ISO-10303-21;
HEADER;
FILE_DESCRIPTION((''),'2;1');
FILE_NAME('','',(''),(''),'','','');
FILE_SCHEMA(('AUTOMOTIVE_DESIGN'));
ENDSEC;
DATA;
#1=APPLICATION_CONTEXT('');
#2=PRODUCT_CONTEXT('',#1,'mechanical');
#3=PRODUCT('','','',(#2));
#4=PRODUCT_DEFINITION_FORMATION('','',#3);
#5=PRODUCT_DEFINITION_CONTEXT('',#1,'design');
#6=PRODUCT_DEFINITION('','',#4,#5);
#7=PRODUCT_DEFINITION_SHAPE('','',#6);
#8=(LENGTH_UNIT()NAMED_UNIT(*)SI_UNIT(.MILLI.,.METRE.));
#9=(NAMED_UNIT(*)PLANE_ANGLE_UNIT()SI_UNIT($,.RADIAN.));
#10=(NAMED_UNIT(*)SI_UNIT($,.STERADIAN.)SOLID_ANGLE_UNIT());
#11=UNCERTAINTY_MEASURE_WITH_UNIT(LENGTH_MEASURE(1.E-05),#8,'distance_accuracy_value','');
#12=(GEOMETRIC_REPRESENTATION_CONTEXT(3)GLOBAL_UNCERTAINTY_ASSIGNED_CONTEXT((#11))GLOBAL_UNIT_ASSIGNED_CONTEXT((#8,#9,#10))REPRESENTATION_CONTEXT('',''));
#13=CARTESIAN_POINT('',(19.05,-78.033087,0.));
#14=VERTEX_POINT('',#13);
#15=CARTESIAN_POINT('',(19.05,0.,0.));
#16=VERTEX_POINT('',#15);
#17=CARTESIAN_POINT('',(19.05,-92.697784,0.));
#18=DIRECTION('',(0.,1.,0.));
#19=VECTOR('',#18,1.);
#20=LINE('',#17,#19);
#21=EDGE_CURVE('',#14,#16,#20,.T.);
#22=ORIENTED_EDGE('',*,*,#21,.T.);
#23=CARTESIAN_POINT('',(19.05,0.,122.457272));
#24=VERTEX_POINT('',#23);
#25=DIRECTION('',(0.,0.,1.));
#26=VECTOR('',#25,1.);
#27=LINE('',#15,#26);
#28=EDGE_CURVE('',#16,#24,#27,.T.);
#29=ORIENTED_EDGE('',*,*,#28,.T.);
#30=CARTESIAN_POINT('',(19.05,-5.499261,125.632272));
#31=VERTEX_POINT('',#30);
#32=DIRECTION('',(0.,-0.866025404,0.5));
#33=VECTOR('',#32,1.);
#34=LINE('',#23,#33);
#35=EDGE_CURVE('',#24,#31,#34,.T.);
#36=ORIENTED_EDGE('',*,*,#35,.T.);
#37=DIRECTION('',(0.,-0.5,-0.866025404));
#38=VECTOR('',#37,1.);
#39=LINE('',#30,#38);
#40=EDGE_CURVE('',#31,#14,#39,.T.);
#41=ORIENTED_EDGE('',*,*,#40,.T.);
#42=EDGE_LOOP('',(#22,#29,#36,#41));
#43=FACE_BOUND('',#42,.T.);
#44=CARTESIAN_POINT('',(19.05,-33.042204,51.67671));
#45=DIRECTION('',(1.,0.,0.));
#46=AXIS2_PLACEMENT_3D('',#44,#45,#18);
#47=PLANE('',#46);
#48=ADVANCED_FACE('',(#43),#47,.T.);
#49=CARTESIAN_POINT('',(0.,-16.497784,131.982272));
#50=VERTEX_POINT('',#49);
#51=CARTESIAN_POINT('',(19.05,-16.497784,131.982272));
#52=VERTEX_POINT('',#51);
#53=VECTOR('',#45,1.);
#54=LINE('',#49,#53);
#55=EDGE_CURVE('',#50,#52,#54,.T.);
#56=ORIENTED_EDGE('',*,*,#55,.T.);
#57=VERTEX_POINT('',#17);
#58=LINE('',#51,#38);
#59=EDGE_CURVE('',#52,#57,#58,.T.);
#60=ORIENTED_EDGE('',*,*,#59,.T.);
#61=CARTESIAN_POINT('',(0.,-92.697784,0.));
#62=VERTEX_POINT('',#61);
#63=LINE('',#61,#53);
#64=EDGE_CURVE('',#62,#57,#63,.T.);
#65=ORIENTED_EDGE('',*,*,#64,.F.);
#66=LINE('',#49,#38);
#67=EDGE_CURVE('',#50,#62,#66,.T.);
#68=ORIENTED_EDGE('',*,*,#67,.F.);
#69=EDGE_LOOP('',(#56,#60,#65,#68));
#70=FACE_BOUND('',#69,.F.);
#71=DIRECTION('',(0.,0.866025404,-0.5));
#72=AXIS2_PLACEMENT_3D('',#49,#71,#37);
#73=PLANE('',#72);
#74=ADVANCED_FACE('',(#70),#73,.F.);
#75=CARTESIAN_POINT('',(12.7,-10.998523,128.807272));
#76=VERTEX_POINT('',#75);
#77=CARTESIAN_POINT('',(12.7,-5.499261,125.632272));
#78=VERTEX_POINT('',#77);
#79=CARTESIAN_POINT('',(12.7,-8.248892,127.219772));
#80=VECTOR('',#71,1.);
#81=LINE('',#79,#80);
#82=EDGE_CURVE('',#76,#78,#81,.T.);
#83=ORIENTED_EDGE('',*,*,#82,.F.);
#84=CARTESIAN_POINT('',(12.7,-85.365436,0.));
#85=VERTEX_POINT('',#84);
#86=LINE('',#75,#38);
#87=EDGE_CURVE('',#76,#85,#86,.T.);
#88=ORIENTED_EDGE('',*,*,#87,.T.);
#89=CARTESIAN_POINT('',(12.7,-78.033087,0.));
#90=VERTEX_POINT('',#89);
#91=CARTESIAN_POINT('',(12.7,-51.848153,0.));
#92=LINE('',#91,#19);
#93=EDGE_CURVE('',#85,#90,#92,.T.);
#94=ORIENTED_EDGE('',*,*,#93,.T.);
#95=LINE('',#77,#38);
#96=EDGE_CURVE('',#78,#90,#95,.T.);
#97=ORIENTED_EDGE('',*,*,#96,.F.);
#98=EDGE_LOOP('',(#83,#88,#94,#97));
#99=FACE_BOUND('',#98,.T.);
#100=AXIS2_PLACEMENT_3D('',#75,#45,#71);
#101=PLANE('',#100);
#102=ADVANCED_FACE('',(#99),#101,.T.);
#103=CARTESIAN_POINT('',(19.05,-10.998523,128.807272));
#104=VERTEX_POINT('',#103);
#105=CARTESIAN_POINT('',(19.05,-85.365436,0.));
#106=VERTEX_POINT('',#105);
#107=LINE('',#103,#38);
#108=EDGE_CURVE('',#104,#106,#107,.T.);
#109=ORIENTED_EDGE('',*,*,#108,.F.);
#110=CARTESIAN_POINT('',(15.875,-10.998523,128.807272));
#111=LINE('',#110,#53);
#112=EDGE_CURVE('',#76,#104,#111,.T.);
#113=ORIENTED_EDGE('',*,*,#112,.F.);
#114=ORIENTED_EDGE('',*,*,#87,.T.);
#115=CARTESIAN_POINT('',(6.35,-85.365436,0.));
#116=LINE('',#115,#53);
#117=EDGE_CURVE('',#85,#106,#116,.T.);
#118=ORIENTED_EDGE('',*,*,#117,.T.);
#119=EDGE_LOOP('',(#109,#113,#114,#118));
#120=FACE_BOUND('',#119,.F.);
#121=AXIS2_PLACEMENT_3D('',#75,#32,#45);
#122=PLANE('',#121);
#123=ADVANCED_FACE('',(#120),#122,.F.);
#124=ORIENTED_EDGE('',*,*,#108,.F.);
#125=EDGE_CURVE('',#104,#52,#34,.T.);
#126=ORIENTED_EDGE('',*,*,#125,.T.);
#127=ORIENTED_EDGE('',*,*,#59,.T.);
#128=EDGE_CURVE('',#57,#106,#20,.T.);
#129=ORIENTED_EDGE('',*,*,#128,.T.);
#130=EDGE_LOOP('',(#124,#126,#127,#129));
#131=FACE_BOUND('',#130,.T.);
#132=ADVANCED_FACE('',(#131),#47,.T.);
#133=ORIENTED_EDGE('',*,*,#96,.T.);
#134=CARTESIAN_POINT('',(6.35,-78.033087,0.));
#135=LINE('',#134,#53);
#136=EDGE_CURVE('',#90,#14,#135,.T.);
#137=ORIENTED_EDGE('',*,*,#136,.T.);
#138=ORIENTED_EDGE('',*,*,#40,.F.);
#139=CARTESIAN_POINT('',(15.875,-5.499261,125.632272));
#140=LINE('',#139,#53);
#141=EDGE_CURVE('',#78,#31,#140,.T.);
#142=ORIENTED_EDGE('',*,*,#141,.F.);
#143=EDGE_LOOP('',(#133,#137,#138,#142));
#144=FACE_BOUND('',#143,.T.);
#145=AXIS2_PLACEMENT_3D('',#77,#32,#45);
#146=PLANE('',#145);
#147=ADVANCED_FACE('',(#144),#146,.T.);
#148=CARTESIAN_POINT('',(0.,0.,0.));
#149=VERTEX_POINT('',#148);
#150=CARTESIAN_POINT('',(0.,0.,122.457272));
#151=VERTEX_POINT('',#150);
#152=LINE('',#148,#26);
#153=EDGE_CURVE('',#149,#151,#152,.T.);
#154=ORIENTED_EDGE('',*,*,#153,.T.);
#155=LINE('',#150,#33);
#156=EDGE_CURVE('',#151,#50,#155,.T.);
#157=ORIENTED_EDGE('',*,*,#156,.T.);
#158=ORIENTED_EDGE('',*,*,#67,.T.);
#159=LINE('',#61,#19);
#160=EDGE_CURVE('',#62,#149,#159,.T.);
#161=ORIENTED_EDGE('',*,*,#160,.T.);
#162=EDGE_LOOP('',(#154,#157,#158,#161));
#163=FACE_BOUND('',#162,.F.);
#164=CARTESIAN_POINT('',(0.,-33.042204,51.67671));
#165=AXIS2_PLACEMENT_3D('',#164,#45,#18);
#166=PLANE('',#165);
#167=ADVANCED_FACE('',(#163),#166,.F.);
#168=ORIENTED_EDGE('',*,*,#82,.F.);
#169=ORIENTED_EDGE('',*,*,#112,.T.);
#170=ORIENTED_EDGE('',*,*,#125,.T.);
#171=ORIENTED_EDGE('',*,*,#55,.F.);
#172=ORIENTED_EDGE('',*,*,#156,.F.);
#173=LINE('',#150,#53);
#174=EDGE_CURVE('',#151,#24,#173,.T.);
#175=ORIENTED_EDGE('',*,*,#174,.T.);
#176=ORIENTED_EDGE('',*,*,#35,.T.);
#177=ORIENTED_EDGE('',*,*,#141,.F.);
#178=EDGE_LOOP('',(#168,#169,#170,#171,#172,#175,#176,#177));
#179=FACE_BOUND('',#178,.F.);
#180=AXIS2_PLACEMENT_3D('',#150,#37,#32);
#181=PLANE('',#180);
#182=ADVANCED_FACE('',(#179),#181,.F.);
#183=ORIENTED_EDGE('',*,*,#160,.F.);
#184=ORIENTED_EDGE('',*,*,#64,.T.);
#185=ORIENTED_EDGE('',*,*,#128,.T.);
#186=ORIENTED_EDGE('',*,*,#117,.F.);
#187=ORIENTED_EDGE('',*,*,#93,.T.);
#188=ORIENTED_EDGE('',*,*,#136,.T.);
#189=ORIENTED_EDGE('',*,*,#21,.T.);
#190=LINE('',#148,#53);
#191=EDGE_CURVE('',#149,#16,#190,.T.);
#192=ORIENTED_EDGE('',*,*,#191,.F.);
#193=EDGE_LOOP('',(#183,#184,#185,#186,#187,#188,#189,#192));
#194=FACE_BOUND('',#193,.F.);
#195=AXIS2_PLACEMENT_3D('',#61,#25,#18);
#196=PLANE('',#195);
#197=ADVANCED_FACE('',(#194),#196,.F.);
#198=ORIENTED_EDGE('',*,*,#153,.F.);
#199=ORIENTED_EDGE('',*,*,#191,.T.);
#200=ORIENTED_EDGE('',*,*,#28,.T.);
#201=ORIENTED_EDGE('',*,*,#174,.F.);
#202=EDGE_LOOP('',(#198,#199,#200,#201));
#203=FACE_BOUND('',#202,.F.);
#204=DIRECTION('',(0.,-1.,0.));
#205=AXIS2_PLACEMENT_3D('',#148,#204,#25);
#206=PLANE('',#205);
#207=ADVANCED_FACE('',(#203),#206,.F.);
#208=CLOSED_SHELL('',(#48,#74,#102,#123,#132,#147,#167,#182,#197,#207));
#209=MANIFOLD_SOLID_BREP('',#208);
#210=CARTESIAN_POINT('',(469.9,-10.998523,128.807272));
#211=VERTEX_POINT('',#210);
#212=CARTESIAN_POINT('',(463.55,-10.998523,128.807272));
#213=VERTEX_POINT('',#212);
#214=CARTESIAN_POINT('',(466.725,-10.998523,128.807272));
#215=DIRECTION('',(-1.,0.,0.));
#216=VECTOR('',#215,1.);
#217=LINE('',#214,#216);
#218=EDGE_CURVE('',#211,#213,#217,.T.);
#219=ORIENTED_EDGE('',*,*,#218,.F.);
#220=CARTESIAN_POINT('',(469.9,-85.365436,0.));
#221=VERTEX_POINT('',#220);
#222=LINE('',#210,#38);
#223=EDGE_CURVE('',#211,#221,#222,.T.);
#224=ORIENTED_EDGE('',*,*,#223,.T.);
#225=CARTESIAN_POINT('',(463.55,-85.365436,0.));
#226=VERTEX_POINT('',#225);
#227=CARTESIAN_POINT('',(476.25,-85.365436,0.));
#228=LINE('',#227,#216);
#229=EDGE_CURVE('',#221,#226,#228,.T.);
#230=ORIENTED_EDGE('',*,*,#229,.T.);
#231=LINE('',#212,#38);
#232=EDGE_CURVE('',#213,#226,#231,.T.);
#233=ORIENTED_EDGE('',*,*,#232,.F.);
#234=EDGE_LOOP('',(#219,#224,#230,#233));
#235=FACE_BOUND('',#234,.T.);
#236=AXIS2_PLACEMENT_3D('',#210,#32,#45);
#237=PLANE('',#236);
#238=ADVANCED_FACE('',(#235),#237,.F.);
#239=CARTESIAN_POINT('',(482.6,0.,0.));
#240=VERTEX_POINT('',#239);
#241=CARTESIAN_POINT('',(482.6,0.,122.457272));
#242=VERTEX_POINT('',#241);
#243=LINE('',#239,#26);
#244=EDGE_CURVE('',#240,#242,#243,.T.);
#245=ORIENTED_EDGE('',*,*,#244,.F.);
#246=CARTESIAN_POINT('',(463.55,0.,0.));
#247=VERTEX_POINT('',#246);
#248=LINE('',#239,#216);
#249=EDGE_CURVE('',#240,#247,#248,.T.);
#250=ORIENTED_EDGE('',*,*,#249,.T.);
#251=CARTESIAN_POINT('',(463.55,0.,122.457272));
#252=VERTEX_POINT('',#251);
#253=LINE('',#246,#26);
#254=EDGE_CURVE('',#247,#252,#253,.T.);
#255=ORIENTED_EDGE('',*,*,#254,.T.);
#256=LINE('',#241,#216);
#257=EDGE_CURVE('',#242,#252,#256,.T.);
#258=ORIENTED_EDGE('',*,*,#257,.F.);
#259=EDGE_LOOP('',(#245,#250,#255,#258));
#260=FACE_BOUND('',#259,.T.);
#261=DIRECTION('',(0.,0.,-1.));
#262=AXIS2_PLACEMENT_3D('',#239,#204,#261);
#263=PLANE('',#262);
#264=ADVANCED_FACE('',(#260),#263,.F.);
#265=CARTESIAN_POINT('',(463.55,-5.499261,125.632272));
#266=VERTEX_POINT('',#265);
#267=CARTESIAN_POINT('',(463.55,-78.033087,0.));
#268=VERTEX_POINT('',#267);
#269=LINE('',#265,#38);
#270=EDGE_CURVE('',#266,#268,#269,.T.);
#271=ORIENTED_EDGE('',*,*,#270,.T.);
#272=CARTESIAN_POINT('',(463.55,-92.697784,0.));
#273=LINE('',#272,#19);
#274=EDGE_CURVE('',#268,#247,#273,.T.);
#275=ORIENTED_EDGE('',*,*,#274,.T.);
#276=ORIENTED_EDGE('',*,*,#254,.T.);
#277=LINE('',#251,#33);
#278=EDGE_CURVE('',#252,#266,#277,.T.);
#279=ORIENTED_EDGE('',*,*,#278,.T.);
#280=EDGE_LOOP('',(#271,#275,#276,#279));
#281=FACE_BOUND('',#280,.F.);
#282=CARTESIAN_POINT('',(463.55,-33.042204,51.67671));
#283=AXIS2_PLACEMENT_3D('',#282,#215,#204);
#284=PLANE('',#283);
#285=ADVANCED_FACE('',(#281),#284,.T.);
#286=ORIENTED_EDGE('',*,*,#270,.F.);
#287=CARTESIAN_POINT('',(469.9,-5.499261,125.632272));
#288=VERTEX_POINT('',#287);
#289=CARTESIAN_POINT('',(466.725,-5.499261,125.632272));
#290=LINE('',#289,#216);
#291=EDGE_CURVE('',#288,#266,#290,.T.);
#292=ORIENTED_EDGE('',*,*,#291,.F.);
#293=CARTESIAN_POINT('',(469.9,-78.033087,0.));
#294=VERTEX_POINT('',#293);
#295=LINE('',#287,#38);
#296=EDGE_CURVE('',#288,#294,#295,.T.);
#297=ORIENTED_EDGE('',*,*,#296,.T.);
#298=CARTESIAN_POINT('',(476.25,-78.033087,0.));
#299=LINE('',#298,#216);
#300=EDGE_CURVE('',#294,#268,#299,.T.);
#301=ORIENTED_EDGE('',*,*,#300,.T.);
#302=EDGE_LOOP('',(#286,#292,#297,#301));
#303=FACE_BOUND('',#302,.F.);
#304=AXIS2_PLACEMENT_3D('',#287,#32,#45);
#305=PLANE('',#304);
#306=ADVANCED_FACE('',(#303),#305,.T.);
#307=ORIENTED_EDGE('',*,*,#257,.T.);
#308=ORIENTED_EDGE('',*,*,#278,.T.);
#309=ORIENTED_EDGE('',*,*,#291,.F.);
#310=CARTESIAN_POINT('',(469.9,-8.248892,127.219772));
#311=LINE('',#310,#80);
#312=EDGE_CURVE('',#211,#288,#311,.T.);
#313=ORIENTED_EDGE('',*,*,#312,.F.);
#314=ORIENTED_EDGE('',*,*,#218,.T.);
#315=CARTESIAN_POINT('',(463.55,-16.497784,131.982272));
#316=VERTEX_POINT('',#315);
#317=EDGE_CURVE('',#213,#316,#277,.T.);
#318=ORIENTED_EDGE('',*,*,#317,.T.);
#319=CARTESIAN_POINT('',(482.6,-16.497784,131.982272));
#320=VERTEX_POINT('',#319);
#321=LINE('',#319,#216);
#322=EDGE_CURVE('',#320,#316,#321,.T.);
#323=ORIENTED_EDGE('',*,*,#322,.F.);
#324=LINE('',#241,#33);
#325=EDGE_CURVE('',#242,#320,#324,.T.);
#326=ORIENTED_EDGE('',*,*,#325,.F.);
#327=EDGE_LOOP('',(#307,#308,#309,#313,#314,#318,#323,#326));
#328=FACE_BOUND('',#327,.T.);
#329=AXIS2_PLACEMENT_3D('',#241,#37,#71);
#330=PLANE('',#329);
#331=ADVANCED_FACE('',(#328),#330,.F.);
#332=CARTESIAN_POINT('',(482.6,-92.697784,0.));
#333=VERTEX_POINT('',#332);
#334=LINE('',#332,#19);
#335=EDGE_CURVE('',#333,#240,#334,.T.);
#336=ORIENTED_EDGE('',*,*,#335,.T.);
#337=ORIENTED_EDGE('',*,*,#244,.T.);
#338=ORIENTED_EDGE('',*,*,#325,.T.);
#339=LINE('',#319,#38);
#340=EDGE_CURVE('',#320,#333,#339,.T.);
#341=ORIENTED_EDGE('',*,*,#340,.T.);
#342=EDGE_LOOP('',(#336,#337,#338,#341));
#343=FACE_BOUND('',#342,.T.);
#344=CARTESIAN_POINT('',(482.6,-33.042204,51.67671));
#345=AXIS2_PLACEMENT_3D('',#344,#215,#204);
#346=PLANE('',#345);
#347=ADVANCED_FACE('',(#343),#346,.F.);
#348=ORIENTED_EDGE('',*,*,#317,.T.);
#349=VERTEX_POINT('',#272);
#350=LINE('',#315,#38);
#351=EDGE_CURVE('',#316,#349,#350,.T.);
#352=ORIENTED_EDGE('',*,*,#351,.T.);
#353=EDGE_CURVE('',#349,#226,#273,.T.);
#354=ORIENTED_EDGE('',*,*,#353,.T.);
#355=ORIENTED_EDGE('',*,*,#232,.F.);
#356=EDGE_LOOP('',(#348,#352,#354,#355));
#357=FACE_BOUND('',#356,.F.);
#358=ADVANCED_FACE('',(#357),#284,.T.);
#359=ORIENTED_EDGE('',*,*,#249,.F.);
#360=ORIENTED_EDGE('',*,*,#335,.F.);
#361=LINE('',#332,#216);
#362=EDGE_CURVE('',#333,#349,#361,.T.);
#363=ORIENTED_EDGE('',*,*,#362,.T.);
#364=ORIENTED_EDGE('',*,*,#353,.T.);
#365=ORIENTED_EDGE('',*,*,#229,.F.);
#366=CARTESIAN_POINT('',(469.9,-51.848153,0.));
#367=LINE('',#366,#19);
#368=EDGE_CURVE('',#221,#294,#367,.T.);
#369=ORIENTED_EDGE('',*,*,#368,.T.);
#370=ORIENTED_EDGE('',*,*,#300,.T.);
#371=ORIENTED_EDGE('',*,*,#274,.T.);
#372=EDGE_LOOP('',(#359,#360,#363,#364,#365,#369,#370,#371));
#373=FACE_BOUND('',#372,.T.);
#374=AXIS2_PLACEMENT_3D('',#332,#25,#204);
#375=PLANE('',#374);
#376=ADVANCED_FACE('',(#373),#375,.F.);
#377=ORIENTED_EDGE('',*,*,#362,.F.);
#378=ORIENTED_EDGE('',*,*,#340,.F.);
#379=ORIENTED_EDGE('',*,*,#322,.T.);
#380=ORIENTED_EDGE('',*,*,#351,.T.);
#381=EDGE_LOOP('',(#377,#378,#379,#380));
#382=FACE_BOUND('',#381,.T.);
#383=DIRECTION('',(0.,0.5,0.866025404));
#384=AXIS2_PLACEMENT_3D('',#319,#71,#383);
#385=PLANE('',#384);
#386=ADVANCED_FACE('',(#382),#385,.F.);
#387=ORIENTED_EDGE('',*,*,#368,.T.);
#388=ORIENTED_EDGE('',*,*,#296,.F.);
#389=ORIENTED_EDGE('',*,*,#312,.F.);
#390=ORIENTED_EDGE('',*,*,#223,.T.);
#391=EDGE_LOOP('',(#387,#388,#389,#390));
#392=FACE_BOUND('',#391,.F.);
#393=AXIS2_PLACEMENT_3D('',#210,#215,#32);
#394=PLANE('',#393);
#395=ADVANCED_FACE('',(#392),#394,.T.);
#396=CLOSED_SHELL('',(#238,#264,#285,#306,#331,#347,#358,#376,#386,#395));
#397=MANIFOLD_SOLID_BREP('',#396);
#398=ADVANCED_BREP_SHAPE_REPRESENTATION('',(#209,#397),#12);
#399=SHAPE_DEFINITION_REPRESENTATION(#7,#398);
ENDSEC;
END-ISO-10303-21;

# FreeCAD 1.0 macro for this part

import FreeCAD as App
import Part
import Sketcher

V = App.Vector
Q = App.Units.Quantity

doc = App.newDocument("Part")
body = doc.addObject("PartDesign::Body", "Body")

# Sketch on YZ plane
sketch1 = body.newObject("Sketcher::SketchObject", "Sketch")
sketch1.AttachmentSupport = (doc.getObject("YZ_Plane"), [""])
sketch1.MapMode = "FlatFace"
sketch1.addGeometry([
    Part.LineSegment(V(-92.697784, 0, 0), V(0, 0, 0)),
    Part.LineSegment(V(0, 0, 0), V(0, 122.457272, 0)),
    Part.LineSegment(V(0, 122.457272, 0), V(-16.497784, 131.982272, 0)),
    Part.LineSegment(V(-16.497784, 131.982272, 0), V(-92.697784, 0, 0)),
], False)
sketch1.addConstraint([
    Sketcher.Constraint("Coincident", 0, 2, 1, 1),
    Sketcher.Constraint("Coincident", 1, 2, 2, 1),
    Sketcher.Constraint("Coincident", 2, 2, 3, 1),
    Sketcher.Constraint("Coincident", 3, 2, 0, 1),
    Sketcher.Constraint("Horizontal", 0),
    Sketcher.Constraint("Vertical", 1),
    Sketcher.Constraint("Coincident", 0, 2, -1, 1),
    Sketcher.Constraint("Perpendicular", 2, 3),
    Sketcher.Constraint("Distance", 3, Q("6 in")),
    Sketcher.Constraint("Angle", 2, Q("150 deg")),
    Sketcher.Constraint("Distance", 2, Q("0.75 in")),
])
pad1 = body.newObject("PartDesign::Pad", "Pad")
pad1.Profile = sketch1
pad1.Length = Q("0.75 in")

# Sketch on an angled plane
sketch2 = body.newObject("Sketcher::SketchObject", "Sketch001")
sketch2.Placement = App.Placement(V(0, 53.025554, 91.842954), App.Rotation(V(1, 0, 0), V(0, 0.866025404, -0.5), V(0, 0.5, 0.866025404), "ZXY"))
sketch2.addGeometry([
    Part.LineSegment(V(12.7, -67.578636, 0), V(12.7, -73.928636, 0)),
    Part.LineSegment(V(12.7, -73.928636, 0), V(19.05, -73.928636, 0)),
    Part.LineSegment(V(19.05, -73.928636, 0), V(19.05, -67.578636, 0)),
    Part.LineSegment(V(19.05, -67.578636, 0), V(12.7, -67.578636, 0)),
], False)
sketch2.addConstraint([
    Sketcher.Constraint("Coincident", 0, 2, 1, 1),
    Sketcher.Constraint("Coincident", 1, 2, 2, 1),
    Sketcher.Constraint("Coincident", 2, 2, 3, 1),
    Sketcher.Constraint("Coincident", 3, 2, 0, 1),
    Sketcher.Constraint("Vertical", 0),
    Sketcher.Constraint("Horizontal", 1),
    Sketcher.Constraint("Vertical", 2),
    Sketcher.Constraint("Horizontal", 3),
    Sketcher.Constraint("Equal", 3, 0),
    Sketcher.Constraint("DistanceX", 1, 1, 1, 2, Q("0.25 in")),
    Sketcher.Constraint("DistanceX", -1, 1, 0, 2, Q("0.5 in")),
    Sketcher.Constraint("DistanceY", 0, 2, -1, 1, 73.928636),
])
pocket1 = body.newObject("PartDesign::Pocket", "Pocket")
pocket1.Profile = sketch2
pocket1.Length = Q("6 in")
body2 = doc.addObject("PartDesign::Body", "Body001")
doc.recompute()

mirroring = doc.addObject("Part::Mirroring", "Mirroring")
mirroring.Source = body
mirroring.Base = V(241.3, 0, 0)
mirroring.Normal = V(1, 0, 0)
body2.BaseFeature = mirroring
doc.recompute()
mirroring.Visibility = False

doc.recompute()
